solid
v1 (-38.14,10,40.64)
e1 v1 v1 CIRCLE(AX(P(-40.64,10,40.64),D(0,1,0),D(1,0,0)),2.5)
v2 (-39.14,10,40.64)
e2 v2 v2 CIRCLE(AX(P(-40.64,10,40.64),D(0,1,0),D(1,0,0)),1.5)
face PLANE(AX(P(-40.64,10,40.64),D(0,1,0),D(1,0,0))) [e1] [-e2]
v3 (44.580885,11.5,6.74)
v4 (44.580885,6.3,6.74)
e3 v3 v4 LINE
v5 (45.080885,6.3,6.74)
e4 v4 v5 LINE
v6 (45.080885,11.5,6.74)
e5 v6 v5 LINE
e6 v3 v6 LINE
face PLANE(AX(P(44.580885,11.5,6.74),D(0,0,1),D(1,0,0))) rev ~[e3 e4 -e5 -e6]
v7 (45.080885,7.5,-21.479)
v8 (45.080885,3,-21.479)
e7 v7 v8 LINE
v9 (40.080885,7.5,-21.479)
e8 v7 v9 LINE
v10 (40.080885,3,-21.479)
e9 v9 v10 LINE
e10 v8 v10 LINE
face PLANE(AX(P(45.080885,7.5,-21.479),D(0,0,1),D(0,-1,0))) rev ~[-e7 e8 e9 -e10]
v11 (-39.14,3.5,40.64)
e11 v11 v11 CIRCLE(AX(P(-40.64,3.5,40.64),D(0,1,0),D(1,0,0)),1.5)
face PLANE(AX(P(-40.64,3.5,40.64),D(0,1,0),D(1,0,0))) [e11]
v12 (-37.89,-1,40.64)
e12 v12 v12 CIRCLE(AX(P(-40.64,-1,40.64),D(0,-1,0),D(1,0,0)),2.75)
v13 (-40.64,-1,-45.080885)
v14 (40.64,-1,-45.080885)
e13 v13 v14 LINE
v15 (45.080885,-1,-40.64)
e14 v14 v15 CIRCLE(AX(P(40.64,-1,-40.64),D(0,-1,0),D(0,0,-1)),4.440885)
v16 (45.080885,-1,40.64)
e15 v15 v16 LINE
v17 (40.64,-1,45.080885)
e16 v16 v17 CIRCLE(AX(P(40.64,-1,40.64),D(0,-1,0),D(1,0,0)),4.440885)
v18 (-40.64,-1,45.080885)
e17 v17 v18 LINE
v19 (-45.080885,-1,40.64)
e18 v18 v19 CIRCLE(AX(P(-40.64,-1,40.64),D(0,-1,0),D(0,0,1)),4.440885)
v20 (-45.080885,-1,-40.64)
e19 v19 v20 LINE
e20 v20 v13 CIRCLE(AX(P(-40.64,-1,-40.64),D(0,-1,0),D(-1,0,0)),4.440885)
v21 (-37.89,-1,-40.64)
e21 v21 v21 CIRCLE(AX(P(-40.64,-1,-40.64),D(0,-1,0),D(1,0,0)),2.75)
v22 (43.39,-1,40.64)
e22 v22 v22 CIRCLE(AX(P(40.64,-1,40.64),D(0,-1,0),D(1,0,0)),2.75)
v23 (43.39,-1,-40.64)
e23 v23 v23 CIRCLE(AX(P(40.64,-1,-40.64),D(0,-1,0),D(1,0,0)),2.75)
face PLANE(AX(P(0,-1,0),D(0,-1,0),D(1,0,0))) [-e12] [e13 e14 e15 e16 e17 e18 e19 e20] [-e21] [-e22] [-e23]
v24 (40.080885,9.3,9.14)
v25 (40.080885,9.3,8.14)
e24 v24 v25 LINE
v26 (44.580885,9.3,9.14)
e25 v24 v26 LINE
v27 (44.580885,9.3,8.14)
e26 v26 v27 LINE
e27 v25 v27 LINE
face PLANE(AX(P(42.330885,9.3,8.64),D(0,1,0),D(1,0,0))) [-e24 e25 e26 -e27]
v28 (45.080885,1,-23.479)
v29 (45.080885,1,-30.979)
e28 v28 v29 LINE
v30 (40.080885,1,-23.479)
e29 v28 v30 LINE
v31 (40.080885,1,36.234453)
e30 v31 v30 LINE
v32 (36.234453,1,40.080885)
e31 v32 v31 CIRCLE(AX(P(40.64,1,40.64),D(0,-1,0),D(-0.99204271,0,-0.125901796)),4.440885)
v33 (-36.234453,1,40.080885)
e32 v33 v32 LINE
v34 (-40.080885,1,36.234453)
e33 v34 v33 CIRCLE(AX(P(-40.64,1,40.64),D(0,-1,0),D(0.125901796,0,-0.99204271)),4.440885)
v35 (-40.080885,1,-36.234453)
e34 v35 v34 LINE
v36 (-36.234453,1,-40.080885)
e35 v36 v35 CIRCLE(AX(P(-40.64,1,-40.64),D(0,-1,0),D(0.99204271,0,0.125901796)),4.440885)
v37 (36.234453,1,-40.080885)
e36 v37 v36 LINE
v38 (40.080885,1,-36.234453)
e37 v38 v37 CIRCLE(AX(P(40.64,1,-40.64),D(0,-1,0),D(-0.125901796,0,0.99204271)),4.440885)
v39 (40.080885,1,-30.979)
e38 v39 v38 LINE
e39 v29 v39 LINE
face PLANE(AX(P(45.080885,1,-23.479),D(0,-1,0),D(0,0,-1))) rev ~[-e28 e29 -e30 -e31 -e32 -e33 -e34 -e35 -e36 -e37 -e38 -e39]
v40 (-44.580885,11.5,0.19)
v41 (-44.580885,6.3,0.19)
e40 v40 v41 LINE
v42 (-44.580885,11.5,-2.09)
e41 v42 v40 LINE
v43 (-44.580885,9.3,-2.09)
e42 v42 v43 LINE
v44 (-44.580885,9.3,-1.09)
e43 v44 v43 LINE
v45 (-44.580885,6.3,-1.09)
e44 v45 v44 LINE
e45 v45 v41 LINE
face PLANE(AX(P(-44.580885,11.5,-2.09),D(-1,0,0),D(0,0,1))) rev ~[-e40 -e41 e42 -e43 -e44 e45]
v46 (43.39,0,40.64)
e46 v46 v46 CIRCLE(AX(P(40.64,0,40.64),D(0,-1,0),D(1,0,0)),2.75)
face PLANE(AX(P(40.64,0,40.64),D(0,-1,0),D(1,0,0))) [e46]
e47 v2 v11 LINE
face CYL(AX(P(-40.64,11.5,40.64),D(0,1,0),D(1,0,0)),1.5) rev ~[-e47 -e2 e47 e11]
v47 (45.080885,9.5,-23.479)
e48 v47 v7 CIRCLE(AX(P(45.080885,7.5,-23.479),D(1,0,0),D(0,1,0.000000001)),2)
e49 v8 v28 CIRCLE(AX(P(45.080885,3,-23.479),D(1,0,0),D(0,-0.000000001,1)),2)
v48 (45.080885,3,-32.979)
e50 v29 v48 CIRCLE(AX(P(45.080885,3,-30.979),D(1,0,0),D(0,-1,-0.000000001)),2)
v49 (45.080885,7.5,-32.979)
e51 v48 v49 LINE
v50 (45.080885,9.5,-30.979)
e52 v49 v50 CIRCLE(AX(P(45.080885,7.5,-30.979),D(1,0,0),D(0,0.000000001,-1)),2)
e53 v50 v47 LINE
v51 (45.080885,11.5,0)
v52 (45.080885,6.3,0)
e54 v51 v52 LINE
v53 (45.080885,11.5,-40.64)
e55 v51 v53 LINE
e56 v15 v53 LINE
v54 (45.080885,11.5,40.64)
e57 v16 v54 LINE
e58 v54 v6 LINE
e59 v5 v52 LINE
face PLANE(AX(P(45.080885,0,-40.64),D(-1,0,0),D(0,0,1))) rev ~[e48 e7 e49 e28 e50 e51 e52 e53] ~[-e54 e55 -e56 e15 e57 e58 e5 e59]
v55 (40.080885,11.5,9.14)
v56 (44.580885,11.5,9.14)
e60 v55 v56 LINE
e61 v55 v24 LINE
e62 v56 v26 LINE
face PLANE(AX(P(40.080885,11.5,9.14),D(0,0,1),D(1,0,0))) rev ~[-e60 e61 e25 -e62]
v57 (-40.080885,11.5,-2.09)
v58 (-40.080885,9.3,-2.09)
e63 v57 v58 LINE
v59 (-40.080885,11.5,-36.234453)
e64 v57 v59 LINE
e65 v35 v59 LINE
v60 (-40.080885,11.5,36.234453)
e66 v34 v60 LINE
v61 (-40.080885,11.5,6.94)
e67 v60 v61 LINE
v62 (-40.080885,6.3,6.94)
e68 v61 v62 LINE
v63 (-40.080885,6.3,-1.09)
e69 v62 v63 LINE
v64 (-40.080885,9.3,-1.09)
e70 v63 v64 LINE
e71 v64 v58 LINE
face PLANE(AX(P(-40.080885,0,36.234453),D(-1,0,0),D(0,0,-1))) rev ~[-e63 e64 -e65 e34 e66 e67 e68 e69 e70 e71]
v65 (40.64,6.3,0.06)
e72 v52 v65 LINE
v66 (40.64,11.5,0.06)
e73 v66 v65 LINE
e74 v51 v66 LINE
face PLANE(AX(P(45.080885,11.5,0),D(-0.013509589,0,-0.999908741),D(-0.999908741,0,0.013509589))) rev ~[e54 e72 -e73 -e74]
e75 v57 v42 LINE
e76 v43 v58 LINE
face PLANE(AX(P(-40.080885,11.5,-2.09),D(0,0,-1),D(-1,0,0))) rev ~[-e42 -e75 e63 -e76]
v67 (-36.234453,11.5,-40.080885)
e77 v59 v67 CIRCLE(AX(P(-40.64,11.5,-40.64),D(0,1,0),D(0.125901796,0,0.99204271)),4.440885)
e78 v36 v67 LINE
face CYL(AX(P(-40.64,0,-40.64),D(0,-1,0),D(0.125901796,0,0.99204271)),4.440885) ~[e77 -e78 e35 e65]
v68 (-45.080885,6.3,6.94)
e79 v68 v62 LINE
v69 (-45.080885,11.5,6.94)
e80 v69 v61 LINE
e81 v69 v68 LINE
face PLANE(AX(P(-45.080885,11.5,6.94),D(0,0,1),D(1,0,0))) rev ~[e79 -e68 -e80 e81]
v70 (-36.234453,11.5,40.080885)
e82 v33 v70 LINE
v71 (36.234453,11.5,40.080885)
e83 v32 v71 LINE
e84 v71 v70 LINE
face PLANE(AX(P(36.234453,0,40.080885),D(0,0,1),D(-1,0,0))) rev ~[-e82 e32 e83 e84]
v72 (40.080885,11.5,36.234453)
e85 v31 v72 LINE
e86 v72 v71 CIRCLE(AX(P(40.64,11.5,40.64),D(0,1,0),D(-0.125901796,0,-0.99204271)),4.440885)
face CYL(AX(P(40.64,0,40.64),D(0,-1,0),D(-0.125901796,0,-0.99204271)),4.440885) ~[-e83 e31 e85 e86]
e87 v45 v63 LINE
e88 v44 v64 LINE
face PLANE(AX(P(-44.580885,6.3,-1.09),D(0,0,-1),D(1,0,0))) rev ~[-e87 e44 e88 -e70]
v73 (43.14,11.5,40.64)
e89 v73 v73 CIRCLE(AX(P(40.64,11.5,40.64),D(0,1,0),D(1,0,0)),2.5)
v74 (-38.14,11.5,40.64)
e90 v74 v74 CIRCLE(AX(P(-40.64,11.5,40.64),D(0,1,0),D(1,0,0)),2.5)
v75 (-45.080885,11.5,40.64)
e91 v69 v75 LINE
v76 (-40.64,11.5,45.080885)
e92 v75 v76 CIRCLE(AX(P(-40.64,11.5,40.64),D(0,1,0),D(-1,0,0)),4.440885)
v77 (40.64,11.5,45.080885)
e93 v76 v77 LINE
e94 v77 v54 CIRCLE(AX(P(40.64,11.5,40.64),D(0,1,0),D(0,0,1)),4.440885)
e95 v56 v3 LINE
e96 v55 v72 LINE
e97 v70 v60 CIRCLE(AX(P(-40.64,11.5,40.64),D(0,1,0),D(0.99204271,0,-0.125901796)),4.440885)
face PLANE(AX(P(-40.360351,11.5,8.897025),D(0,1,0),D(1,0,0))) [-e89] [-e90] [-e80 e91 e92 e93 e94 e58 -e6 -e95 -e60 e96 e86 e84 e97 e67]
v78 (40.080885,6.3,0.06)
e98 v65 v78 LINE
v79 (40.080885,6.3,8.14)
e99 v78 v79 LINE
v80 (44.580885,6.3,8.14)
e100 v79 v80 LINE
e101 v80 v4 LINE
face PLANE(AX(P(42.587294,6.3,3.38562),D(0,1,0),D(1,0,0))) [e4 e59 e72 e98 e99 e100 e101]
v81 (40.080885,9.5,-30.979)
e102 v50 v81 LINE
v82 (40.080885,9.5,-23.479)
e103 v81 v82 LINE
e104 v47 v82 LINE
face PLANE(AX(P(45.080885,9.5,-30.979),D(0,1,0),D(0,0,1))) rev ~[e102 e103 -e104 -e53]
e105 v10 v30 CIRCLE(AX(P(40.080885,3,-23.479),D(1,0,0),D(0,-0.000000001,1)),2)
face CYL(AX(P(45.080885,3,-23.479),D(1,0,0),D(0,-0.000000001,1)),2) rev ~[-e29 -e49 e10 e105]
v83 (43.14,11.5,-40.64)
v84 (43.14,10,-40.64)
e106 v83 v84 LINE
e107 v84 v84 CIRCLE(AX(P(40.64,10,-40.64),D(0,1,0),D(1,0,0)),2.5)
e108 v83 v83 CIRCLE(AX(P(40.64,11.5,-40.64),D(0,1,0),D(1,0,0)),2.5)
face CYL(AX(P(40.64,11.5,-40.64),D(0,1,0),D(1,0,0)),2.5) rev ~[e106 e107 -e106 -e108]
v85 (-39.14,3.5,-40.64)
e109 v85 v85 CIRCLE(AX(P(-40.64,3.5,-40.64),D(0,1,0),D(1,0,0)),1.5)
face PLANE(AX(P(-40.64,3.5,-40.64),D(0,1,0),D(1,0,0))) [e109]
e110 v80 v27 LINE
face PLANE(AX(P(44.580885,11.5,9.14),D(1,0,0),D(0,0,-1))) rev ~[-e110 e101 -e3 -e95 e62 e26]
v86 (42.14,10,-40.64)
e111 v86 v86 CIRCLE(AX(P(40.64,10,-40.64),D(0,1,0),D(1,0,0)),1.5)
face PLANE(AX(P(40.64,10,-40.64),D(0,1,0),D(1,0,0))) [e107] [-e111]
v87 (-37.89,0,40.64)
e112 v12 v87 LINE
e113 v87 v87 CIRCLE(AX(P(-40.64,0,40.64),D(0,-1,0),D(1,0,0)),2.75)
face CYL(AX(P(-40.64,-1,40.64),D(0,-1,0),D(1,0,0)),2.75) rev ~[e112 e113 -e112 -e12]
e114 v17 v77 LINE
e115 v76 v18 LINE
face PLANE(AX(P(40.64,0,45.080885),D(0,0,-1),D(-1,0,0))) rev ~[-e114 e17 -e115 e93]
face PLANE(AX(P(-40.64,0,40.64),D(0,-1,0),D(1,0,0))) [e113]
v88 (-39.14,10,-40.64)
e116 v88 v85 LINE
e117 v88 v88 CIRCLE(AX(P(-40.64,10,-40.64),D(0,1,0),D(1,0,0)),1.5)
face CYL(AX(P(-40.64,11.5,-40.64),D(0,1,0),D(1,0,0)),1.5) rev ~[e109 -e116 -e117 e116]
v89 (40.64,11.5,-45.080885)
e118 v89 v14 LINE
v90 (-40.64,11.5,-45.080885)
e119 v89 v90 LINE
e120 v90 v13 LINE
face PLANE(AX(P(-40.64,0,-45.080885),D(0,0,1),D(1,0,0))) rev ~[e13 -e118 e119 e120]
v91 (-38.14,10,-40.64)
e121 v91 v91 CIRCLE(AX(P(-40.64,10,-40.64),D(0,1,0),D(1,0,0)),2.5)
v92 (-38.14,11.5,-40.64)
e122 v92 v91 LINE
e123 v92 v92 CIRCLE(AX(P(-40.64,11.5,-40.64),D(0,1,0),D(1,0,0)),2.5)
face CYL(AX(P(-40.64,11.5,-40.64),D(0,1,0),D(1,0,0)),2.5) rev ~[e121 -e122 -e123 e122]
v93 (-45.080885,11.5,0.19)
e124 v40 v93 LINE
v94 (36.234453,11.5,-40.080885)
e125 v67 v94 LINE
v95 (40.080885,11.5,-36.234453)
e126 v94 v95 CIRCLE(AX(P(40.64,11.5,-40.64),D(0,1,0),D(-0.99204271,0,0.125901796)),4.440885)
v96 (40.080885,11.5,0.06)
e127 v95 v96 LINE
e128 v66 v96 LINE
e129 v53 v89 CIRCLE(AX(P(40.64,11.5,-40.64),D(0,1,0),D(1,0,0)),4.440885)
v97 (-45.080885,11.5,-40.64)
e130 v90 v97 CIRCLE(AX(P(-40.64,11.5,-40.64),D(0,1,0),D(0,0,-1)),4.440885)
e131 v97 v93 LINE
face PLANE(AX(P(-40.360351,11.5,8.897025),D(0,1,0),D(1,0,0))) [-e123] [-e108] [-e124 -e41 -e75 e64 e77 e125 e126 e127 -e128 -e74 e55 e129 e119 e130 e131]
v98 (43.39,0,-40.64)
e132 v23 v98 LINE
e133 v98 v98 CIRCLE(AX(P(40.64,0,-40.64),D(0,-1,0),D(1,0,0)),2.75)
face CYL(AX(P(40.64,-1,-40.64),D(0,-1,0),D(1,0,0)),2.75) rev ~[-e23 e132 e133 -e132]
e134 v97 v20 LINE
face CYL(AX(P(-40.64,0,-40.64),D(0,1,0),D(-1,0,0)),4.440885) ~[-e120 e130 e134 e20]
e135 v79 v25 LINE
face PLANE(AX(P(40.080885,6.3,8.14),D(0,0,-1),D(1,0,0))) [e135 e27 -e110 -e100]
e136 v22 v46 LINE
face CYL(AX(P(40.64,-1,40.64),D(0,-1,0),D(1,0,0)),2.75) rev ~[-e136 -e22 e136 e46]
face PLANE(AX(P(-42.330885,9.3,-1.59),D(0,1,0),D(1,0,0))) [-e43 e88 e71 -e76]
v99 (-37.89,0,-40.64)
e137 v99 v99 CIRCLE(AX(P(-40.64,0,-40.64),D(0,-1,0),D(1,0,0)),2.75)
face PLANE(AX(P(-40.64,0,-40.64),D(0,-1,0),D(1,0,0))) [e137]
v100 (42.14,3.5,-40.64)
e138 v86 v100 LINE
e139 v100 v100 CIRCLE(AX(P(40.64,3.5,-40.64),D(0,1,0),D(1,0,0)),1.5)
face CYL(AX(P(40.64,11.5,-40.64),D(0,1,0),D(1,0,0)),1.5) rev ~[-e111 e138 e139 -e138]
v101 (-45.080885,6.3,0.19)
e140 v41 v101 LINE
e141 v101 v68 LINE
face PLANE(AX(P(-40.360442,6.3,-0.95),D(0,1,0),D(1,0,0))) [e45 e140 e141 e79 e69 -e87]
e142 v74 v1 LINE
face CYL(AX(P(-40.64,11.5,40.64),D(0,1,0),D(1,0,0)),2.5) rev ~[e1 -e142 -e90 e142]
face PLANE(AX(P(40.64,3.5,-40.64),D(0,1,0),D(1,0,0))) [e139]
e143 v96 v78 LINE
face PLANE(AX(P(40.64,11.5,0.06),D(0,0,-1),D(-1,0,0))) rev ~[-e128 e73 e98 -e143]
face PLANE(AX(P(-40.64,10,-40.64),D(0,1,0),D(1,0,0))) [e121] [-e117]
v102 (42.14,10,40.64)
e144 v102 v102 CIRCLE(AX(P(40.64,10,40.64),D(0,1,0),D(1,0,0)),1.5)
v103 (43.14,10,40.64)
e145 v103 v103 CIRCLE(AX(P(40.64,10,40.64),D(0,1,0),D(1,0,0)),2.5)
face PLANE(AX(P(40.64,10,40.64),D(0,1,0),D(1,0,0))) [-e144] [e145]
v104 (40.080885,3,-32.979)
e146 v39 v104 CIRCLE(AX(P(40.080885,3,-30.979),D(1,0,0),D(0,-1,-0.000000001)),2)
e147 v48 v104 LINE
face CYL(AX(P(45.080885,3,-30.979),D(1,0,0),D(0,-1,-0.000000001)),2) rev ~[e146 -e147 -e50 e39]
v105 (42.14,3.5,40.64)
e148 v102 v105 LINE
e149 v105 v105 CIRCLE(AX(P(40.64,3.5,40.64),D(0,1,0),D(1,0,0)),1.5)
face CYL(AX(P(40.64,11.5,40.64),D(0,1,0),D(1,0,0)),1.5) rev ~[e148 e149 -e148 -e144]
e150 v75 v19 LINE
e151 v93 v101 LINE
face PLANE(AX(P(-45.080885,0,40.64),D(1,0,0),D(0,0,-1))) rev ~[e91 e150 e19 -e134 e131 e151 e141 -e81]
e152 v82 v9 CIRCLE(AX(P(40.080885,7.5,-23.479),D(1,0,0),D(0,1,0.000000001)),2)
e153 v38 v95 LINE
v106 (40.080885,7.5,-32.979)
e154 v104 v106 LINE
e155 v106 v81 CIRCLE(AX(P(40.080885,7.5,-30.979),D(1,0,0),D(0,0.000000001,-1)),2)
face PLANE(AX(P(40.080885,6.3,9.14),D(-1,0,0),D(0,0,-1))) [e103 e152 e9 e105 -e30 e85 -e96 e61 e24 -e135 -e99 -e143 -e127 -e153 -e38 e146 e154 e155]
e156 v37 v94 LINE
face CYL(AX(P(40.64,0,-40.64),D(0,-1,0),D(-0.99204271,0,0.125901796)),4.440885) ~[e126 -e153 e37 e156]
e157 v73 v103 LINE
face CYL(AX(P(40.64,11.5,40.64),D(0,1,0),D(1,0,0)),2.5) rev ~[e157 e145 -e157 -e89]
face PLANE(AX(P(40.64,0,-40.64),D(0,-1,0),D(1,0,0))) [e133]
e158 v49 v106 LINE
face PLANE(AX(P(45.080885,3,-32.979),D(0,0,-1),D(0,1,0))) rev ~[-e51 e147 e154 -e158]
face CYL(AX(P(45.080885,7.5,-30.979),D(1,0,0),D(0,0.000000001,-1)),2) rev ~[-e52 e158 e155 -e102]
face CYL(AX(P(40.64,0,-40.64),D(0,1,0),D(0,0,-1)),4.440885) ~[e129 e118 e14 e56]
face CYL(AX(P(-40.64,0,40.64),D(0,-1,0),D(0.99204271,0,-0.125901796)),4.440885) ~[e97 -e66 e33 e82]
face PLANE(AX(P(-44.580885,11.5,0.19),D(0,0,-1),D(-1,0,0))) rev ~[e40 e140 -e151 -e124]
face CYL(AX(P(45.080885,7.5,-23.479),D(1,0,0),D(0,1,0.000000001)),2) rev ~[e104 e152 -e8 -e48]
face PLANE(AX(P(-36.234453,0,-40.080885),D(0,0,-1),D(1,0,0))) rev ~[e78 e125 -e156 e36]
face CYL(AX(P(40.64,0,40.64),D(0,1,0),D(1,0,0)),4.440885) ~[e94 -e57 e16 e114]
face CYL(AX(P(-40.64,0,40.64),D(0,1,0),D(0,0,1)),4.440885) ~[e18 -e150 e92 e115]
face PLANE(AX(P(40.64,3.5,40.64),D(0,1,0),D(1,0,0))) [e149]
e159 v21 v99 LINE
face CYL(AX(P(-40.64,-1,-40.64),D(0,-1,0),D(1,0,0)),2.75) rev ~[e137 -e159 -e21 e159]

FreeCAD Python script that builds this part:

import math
import FreeCAD as App
import Part
import Sketcher
Q = App.Units.Quantity


def add_polygon(sketch, points):
    """Adds a closed chain of lines whose ends are joined by coincident constraints."""
    first, n = sketch.GeometryCount, len(points)
    for a, b in zip(points, points[1:] + points[:1]):
        sketch.addGeometry(Part.LineSegment(App.Vector(*a, 0), App.Vector(*b, 0)), False)
    for i in range(n):
        sketch.addConstraint(Sketcher.Constraint("Coincident", first + i, 2, first + (i + 1) % n, 1))

doc = App.newDocument("Part")
body = doc.addObject("PartDesign::Body", "Body")

sketch1 = body.newObject("Sketcher::SketchObject", "Sketch")
sketch1.AttachmentSupport = (doc.getObject("XZ_Plane"), [""])
sketch1.MapMode = "FlatFace"
sketch1.addGeometry(Part.ArcOfCircle(Part.Circle(App.Vector(-40.64, -40.64, 0), App.Vector(0, 0, 1), 4.440885), math.radians(180), math.radians(270)), False)
sketch1.addGeometry(Part.LineSegment(App.Vector(-45.080885, -40.64, 0), App.Vector(-45.080885, 40.64, 0)), False)
sketch1.addGeometry(Part.ArcOfCircle(Part.Circle(App.Vector(-40.64, 40.64, 0), App.Vector(0, 0, 1), 4.440885), math.radians(90), math.radians(180)), False)
sketch1.addGeometry(Part.LineSegment(App.Vector(-40.64, 45.080885, 0), App.Vector(40.64, 45.080885, 0)), False)
sketch1.addGeometry(Part.ArcOfCircle(Part.Circle(App.Vector(40.64, 40.64, 0), App.Vector(0, 0, 1), 4.440885), math.radians(0), math.radians(90)), False)
sketch1.addGeometry(Part.LineSegment(App.Vector(45.080885, 40.64, 0), App.Vector(45.080885, -40.64, 0)), False)
sketch1.addGeometry(Part.ArcOfCircle(Part.Circle(App.Vector(40.64, -40.64, 0), App.Vector(0, 0, 1), 4.440885), math.radians(-90), math.radians(0)), False)
sketch1.addGeometry(Part.LineSegment(App.Vector(40.64, -45.080885, 0), App.Vector(-40.64, -45.080885, 0)), False)
sketch1.addGeometry(Part.ArcOfCircle(Part.Circle(App.Vector(40.64, 40.64, 0), App.Vector(0, 0, 1), 4.440885), math.radians(-172.767164), math.radians(-97.232836)), False)
sketch1.addGeometry(Part.LineSegment(App.Vector(36.234453, 40.080885, 0), App.Vector(-36.234453, 40.080885, 0)), False)
sketch1.addGeometry(Part.ArcOfCircle(Part.Circle(App.Vector(-40.64, 40.64, 0), App.Vector(0, 0, 1), 4.440885), math.radians(-82.767164), math.radians(-7.232836)), False)
sketch1.addGeometry(Part.LineSegment(App.Vector(-40.080885, 36.234453, 0), App.Vector(-40.080885, -36.234453, 0)), False)
sketch1.addGeometry(Part.ArcOfCircle(Part.Circle(App.Vector(-40.64, -40.64, 0), App.Vector(0, 0, 1), 4.440885), math.radians(7.232836), math.radians(82.767164)), False)
sketch1.addGeometry(Part.LineSegment(App.Vector(-36.234453, -40.080885, 0), App.Vector(36.234453, -40.080885, 0)), False)
sketch1.addGeometry(Part.ArcOfCircle(Part.Circle(App.Vector(40.64, -40.64, 0), App.Vector(0, 0, 1), 4.440885), math.radians(97.232836), math.radians(172.767164)), False)
sketch1.addGeometry(Part.LineSegment(App.Vector(40.080885, -36.234453, 0), App.Vector(40.080885, 36.234453, 0)), False)
sketch1.addConstraint(Sketcher.Constraint("Tangent", 0, 1, 1, 1))
sketch1.addConstraint(Sketcher.Constraint("Tangent", 1, 2, 2, 2))
sketch1.addConstraint(Sketcher.Constraint("Tangent", 2, 1, 3, 1))
sketch1.addConstraint(Sketcher.Constraint("Tangent", 3, 2, 4, 2))
sketch1.addConstraint(Sketcher.Constraint("Tangent", 4, 1, 5, 1))
sketch1.addConstraint(Sketcher.Constraint("Tangent", 5, 2, 6, 2))
sketch1.addConstraint(Sketcher.Constraint("Tangent", 6, 1, 7, 1))
sketch1.addConstraint(Sketcher.Constraint("Tangent", 7, 2, 0, 2))
sketch1.addConstraint(Sketcher.Constraint("Coincident", 8, 1, 9, 1))
sketch1.addConstraint(Sketcher.Constraint("Coincident", 9, 2, 10, 2))
sketch1.addConstraint(Sketcher.Constraint("Coincident", 10, 1, 11, 1))
sketch1.addConstraint(Sketcher.Constraint("Coincident", 11, 2, 12, 2))
sketch1.addConstraint(Sketcher.Constraint("Coincident", 12, 1, 13, 1))
sketch1.addConstraint(Sketcher.Constraint("Coincident", 13, 2, 14, 2))
sketch1.addConstraint(Sketcher.Constraint("Coincident", 14, 1, 15, 1))
sketch1.addConstraint(Sketcher.Constraint("Coincident", 15, 2, 8, 2))
sketch1.addConstraint(Sketcher.Constraint("Vertical", 1))
sketch1.addConstraint(Sketcher.Constraint("Horizontal", 3))
sketch1.addConstraint(Sketcher.Constraint("Vertical", 5))
sketch1.addConstraint(Sketcher.Constraint("Horizontal", 7))
sketch1.addConstraint(Sketcher.Constraint("Horizontal", 9))
sketch1.addConstraint(Sketcher.Constraint("Vertical", 11))
sketch1.addConstraint(Sketcher.Constraint("Horizontal", 13))
sketch1.addConstraint(Sketcher.Constraint("Vertical", 15))
sketch1.addConstraint(Sketcher.Constraint("Coincident", 8, 3, 4, 3))
sketch1.addConstraint(Sketcher.Constraint("Coincident", 10, 3, 2, 3))
sketch1.addConstraint(Sketcher.Constraint("Coincident", 12, 3, 0, 3))
sketch1.addConstraint(Sketcher.Constraint("Coincident", 14, 3, 6, 3))
sketch1.addConstraint(Sketcher.Constraint("Equal", 0, 2))
sketch1.addConstraint(Sketcher.Constraint("Equal", 2, 4))
sketch1.addConstraint(Sketcher.Constraint("Equal", 4, 6))
sketch1.addConstraint(Sketcher.Constraint("Equal", 6, 8))
sketch1.addConstraint(Sketcher.Constraint("Equal", 8, 10))
sketch1.addConstraint(Sketcher.Constraint("Equal", 10, 12))
sketch1.addConstraint(Sketcher.Constraint("Equal", 12, 14))
sketch1.addConstraint(Sketcher.Constraint("Symmetric", 0, 3, 4, 3, -1, 1))
sketch1.addConstraint(Sketcher.Constraint("Horizontal", 11, 2, 14, 1))
sketch1.addConstraint(Sketcher.Constraint("Vertical", 9, 2, 12, 1))
sketch1.addConstraint(Sketcher.Constraint("Equal", 7, 1))
sketch1.addConstraint(Sketcher.Constraint("Equal", 13, 11))
sketch1.addConstraint(Sketcher.Constraint("DistanceY", 8, 1, 3, 2, Q("5 mm")))
sketch1.addConstraint(Sketcher.Constraint("DistanceX", 3, 1, 3, 2, Q("81.28 mm")))
sketch1.addConstraint(Sketcher.Constraint("Radius", 0, Q("4.440885 mm")))
pad1 = body.newObject("PartDesign::Pad", "Pad")
pad1.Profile = sketch1
pad1.Length = 11.5
pad1.Reversed = True

sketch2 = body.newObject("Sketcher::SketchObject", "Sketch001")
sketch2.AttachmentSupport = (doc.getObject("XZ_Plane"), [""])
sketch2.MapMode = "FlatFace"
sketch2.AttachmentOffset = App.Placement(App.Vector(0, 0, -11.5), App.Rotation())
sketch2.addGeometry(Part.Circle(App.Vector(-40.64, -40.64, 0), App.Vector(0, 0, 1), 1.5), False)
sketch2.addGeometry(Part.Circle(App.Vector(40.64, -40.64, 0), App.Vector(0, 0, 1), 1.5), False)
sketch2.addGeometry(Part.Circle(App.Vector(40.64, 40.64, 0), App.Vector(0, 0, 1), 1.5), False)
sketch2.addGeometry(Part.Circle(App.Vector(-40.64, 40.64, 0), App.Vector(0, 0, 1), 1.5), False)
sketch2.addConstraint(Sketcher.Constraint("Equal", 0, 1))
sketch2.addConstraint(Sketcher.Constraint("Equal", 1, 2))
sketch2.addConstraint(Sketcher.Constraint("Equal", 2, 3))
sketch2.addConstraint(Sketcher.Constraint("Symmetric", 0, 3, 2, 3, -1, 1))
sketch2.addConstraint(Sketcher.Constraint("Symmetric", 1, 3, 3, 3, -1, 1))
sketch2.addConstraint(Sketcher.Constraint("Symmetric", 0, 3, 1, 3, -2))
sketch2.addConstraint(Sketcher.Constraint("Diameter", 0, Q("3 mm")))
sketch2.addConstraint(Sketcher.Constraint("DistanceX", 0, 3, -1, 1, Q("40.64 mm")))
sketch2.addConstraint(Sketcher.Constraint("DistanceY", 0, 3, -1, 1, Q("40.64 mm")))
pocket1 = body.newObject("PartDesign::Pocket", "Pocket")
pocket1.Profile = sketch2
pocket1.Length = 8
pocket1.Reversed = True

sketch3 = body.newObject("Sketcher::SketchObject", "Sketch002")
sketch3.AttachmentSupport = (doc.getObject("YZ_Plane"), [""])
sketch3.MapMode = "FlatFace"
sketch3.AttachmentOffset = App.Placement(App.Vector(0, 0, 45.080885), App.Rotation())
sketch3.addGeometry(Part.LineSegment(App.Vector(9.5, -30.979, 0), App.Vector(9.5, -23.479, 0)), False)
sketch3.addGeometry(Part.ArcOfCircle(Part.Circle(App.Vector(7.5, -23.479, 0), App.Vector(0, 0, 1), 2), math.radians(0), math.radians(90)), False)
sketch3.addGeometry(Part.LineSegment(App.Vector(7.5, -21.479, 0), App.Vector(3, -21.479, 0)), False)
sketch3.addGeometry(Part.ArcOfCircle(Part.Circle(App.Vector(3, -23.479, 0), App.Vector(0, 0, 1), 2), math.radians(90), math.radians(180)), False)
sketch3.addGeometry(Part.LineSegment(App.Vector(1, -23.479, 0), App.Vector(1, -30.979, 0)), False)
sketch3.addGeometry(Part.ArcOfCircle(Part.Circle(App.Vector(3, -30.979, 0), App.Vector(0, 0, 1), 2), math.radians(-180), math.radians(-90)), False)
sketch3.addGeometry(Part.LineSegment(App.Vector(3, -32.979, 0), App.Vector(7.5, -32.979, 0)), False)
sketch3.addGeometry(Part.ArcOfCircle(Part.Circle(App.Vector(7.5, -30.979, 0), App.Vector(0, 0, 1), 2), math.radians(-90), math.radians(0)), False)
sketch3.addConstraint(Sketcher.Constraint("Tangent", 0, 2, 1, 1))
sketch3.addConstraint(Sketcher.Constraint("Tangent", 1, 2, 2, 1))
sketch3.addConstraint(Sketcher.Constraint("Tangent", 2, 2, 3, 1))
sketch3.addConstraint(Sketcher.Constraint("Tangent", 3, 2, 4, 1))
sketch3.addConstraint(Sketcher.Constraint("Tangent", 4, 2, 5, 1))
sketch3.addConstraint(Sketcher.Constraint("Tangent", 5, 2, 6, 1))
sketch3.addConstraint(Sketcher.Constraint("Tangent", 6, 2, 7, 1))
sketch3.addConstraint(Sketcher.Constraint("Tangent", 7, 2, 0, 1))
sketch3.addConstraint(Sketcher.Constraint("Vertical", 0))
sketch3.addConstraint(Sketcher.Constraint("Horizontal", 2))
sketch3.addConstraint(Sketcher.Constraint("Vertical", 4))
sketch3.addConstraint(Sketcher.Constraint("Horizontal", 6))
sketch3.addConstraint(Sketcher.Constraint("Equal", 1, 3))
sketch3.addConstraint(Sketcher.Constraint("Equal", 3, 5))
sketch3.addConstraint(Sketcher.Constraint("Equal", 5, 7))
sketch3.addConstraint(Sketcher.Constraint("Radius", 1, Q("2 mm")))
sketch3.addConstraint(Sketcher.Constraint("DistanceX", 2, 2, 2, 1, Q("4.5 mm")))
sketch3.addConstraint(Sketcher.Constraint("DistanceY", 0, 1, 0, 2, Q("7.5 mm")))
sketch3.addConstraint(Sketcher.Constraint("DistanceX", -1, 1, 3, 3, Q("3 mm")))
sketch3.addConstraint(Sketcher.Constraint("DistanceY", 1, 3, -1, 1, Q("23.479 mm")))
pocket2 = body.newObject("PartDesign::Pocket", "Pocket001")
pocket2.Profile = sketch3
pocket2.Length = 8

sketch4 = body.newObject("Sketcher::SketchObject", "Sketch003")
sketch4.AttachmentSupport = (doc.getObject("XZ_Plane"), [""])
sketch4.MapMode = "FlatFace"
sketch4.AttachmentOffset = App.Placement(App.Vector(0, 0, -11.5), App.Rotation())
sketch4.addGeometry(Part.Circle(App.Vector(-40.64, -40.64, 0), App.Vector(0, 0, 1), 2.5), False)
sketch4.addGeometry(Part.Circle(App.Vector(40.64, -40.64, 0), App.Vector(0, 0, 1), 2.5), False)
sketch4.addGeometry(Part.Circle(App.Vector(40.64, 40.64, 0), App.Vector(0, 0, 1), 2.5), False)
sketch4.addGeometry(Part.Circle(App.Vector(-40.64, 40.64, 0), App.Vector(0, 0, 1), 2.5), False)
sketch4.addConstraint(Sketcher.Constraint("Equal", 0, 1))
sketch4.addConstraint(Sketcher.Constraint("Equal", 1, 2))
sketch4.addConstraint(Sketcher.Constraint("Equal", 2, 3))
sketch4.addConstraint(Sketcher.Constraint("Symmetric", 0, 3, 2, 3, -1, 1))
sketch4.addConstraint(Sketcher.Constraint("Symmetric", 1, 3, 3, 3, -1, 1))
sketch4.addConstraint(Sketcher.Constraint("Symmetric", 0, 3, 1, 3, -2))
sketch4.addConstraint(Sketcher.Constraint("Diameter", 0, Q("5 mm")))
sketch4.addConstraint(Sketcher.Constraint("DistanceX", 0, 3, -1, 1, Q("40.64 mm")))
sketch4.addConstraint(Sketcher.Constraint("DistanceY", 0, 3, -1, 1, Q("40.64 mm")))
pocket3 = body.newObject("PartDesign::Pocket", "Pocket002")
pocket3.Profile = sketch4
pocket3.Length = 1.5
pocket3.Reversed = True

sketch5 = body.newObject("Sketcher::SketchObject", "Sketch004")
sketch5.AttachmentSupport = (doc.getObject("XZ_Plane"), [""])
sketch5.MapMode = "FlatFace"
sketch5.addGeometry(Part.ArcOfCircle(Part.Circle(App.Vector(40.64, 40.64, 0), App.Vector(0, 0, 1), 4.440885), math.radians(-172.767164), math.radians(-97.232836)), False)
sketch5.addGeometry(Part.LineSegment(App.Vector(36.234453, 40.080885, 0), App.Vector(-36.234453, 40.080885, 0)), False)
sketch5.addGeometry(Part.ArcOfCircle(Part.Circle(App.Vector(-40.64, 40.64, 0), App.Vector(0, 0, 1), 4.440885), math.radians(-82.767164), math.radians(-7.232836)), False)
sketch5.addGeometry(Part.LineSegment(App.Vector(-40.080885, 36.234453, 0), App.Vector(-40.080885, -36.234453, 0)), False)
sketch5.addGeometry(Part.ArcOfCircle(Part.Circle(App.Vector(-40.64, -40.64, 0), App.Vector(0, 0, 1), 4.440885), math.radians(7.232836), math.radians(82.767164)), False)
sketch5.addGeometry(Part.LineSegment(App.Vector(-36.234453, -40.080885, 0), App.Vector(36.234453, -40.080885, 0)), False)
sketch5.addGeometry(Part.ArcOfCircle(Part.Circle(App.Vector(40.64, -40.64, 0), App.Vector(0, 0, 1), 4.440885), math.radians(97.232836), math.radians(172.767164)), False)
sketch5.addGeometry(Part.LineSegment(App.Vector(40.080885, -36.234453, 0), App.Vector(40.080885, 36.234453, 0)), False)
sketch5.addConstraint(Sketcher.Constraint("Coincident", 0, 1, 1, 1))
sketch5.addConstraint(Sketcher.Constraint("Coincident", 1, 2, 2, 2))
sketch5.addConstraint(Sketcher.Constraint("Coincident", 2, 1, 3, 1))
sketch5.addConstraint(Sketcher.Constraint("Coincident", 3, 2, 4, 2))
sketch5.addConstraint(Sketcher.Constraint("Coincident", 4, 1, 5, 1))
sketch5.addConstraint(Sketcher.Constraint("Coincident", 5, 2, 6, 2))
sketch5.addConstraint(Sketcher.Constraint("Coincident", 6, 1, 7, 1))
sketch5.addConstraint(Sketcher.Constraint("Coincident", 7, 2, 0, 2))
sketch5.addConstraint(Sketcher.Constraint("Horizontal", 1))
sketch5.addConstraint(Sketcher.Constraint("Vertical", 3))
sketch5.addConstraint(Sketcher.Constraint("Horizontal", 5))
sketch5.addConstraint(Sketcher.Constraint("Vertical", 7))
sketch5.addConstraint(Sketcher.Constraint("Equal", 0, 2))
sketch5.addConstraint(Sketcher.Constraint("Equal", 2, 4))
sketch5.addConstraint(Sketcher.Constraint("Equal", 4, 6))
sketch5.addConstraint(Sketcher.Constraint("Symmetric", 0, 3, 4, 3, -1, 1))
sketch5.addConstraint(Sketcher.Constraint("Symmetric", 2, 3, 6, 3, -1, 1))
sketch5.addConstraint(Sketcher.Constraint("Symmetric", 0, 3, 2, 3, -2))
sketch5.addConstraint(Sketcher.Constraint("Horizontal", 3, 2, 6, 1))
sketch5.addConstraint(Sketcher.Constraint("Vertical", 1, 2, 4, 1))
sketch5.addConstraint(Sketcher.Constraint("Equal", 5, 3))
sketch5.addConstraint(Sketcher.Constraint("DistanceX", -1, 1, 0, 3, Q("40.64 mm")))
sketch5.addConstraint(Sketcher.Constraint("DistanceY", -1, 1, 0, 3, Q("40.64 mm")))
sketch5.addConstraint(Sketcher.Constraint("Radius", 0, Q("4.440885 mm")))
sketch5.addConstraint(Sketcher.Constraint("DistanceX", 1, 2, 1, 1, Q("72.468906 mm")))
pad2 = body.newObject("PartDesign::Pad", "Pad001")
pad2.Profile = sketch5
pad2.Length = 1
pad2.Reversed = True

sketch6 = body.newObject("Sketcher::SketchObject", "Sketch005")
sketch6.AttachmentSupport = (doc.getObject("XZ_Plane"), [""])
sketch6.MapMode = "FlatFace"
sketch6.addGeometry(Part.LineSegment(App.Vector(40.64, 45.080885, 0), App.Vector(-40.64, 45.080885, 0)), False)
sketch6.addGeometry(Part.ArcOfCircle(Part.Circle(App.Vector(-40.64, 40.64, 0), App.Vector(0, 0, 1), 4.440885), math.radians(90), math.radians(180)), False)
sketch6.addGeometry(Part.LineSegment(App.Vector(-45.080885, 40.64, 0), App.Vector(-45.080885, -40.64, 0)), False)
sketch6.addGeometry(Part.ArcOfCircle(Part.Circle(App.Vector(-40.64, -40.64, 0), App.Vector(0, 0, 1), 4.440885), math.radians(180), math.radians(270)), False)
sketch6.addGeometry(Part.LineSegment(App.Vector(-40.64, -45.080885, 0), App.Vector(40.64, -45.080885, 0)), False)
sketch6.addGeometry(Part.ArcOfCircle(Part.Circle(App.Vector(40.64, -40.64, 0), App.Vector(0, 0, 1), 4.440885), math.radians(-90), math.radians(0)), False)
sketch6.addGeometry(Part.LineSegment(App.Vector(45.080885, -40.64, 0), App.Vector(45.080885, 40.64, 0)), False)
sketch6.addGeometry(Part.ArcOfCircle(Part.Circle(App.Vector(40.64, 40.64, 0), App.Vector(0, 0, 1), 4.440885), math.radians(0), math.radians(90)), False)
sketch6.addConstraint(Sketcher.Constraint("Tangent", 0, 2, 1, 1))
sketch6.addConstraint(Sketcher.Constraint("Tangent", 1, 2, 2, 1))
sketch6.addConstraint(Sketcher.Constraint("Tangent", 2, 2, 3, 1))
sketch6.addConstraint(Sketcher.Constraint("Tangent", 3, 2, 4, 1))
sketch6.addConstraint(Sketcher.Constraint("Tangent", 4, 2, 5, 1))
sketch6.addConstraint(Sketcher.Constraint("Tangent", 5, 2, 6, 1))
sketch6.addConstraint(Sketcher.Constraint("Tangent", 6, 2, 7, 1))
sketch6.addConstraint(Sketcher.Constraint("Tangent", 7, 2, 0, 1))
sketch6.addConstraint(Sketcher.Constraint("Horizontal", 0))
sketch6.addConstraint(Sketcher.Constraint("Vertical", 2))
sketch6.addConstraint(Sketcher.Constraint("Horizontal", 4))
sketch6.addConstraint(Sketcher.Constraint("Vertical", 6))
sketch6.addConstraint(Sketcher.Constraint("Equal", 1, 3))
sketch6.addConstraint(Sketcher.Constraint("Equal", 3, 5))
sketch6.addConstraint(Sketcher.Constraint("Equal", 5, 7))
sketch6.addConstraint(Sketcher.Constraint("Symmetric", 1, 3, 5, 3, -1, 1))
sketch6.addConstraint(Sketcher.Constraint("Equal", 4, 2))
sketch6.addConstraint(Sketcher.Constraint("DistanceX", 0, 2, 0, 1, Q("81.28 mm")))
sketch6.addConstraint(Sketcher.Constraint("Radius", 1, Q("4.440885 mm")))
pad3 = body.newObject("PartDesign::Pad", "Pad002")
pad3.Profile = sketch6
pad3.Length = 1

sketch7 = body.newObject("Sketcher::SketchObject", "Sketch006")
sketch7.AttachmentSupport = (doc.getObject("XZ_Plane"), [""])
sketch7.MapMode = "FlatFace"
sketch7.AttachmentOffset = App.Placement(App.Vector(0, 0, 1), App.Rotation())
sketch7.addGeometry(Part.Circle(App.Vector(-40.64, 40.64, 0), App.Vector(0, 0, 1), 2.75), False)
sketch7.addGeometry(Part.Circle(App.Vector(40.64, 40.64, 0), App.Vector(0, 0, 1), 2.75), False)
sketch7.addGeometry(Part.Circle(App.Vector(40.64, -40.64, 0), App.Vector(0, 0, 1), 2.75), False)
sketch7.addGeometry(Part.Circle(App.Vector(-40.64, -40.64, 0), App.Vector(0, 0, 1), 2.75), False)
sketch7.addConstraint(Sketcher.Constraint("Equal", 0, 1))
sketch7.addConstraint(Sketcher.Constraint("Equal", 1, 2))
sketch7.addConstraint(Sketcher.Constraint("Equal", 2, 3))
sketch7.addConstraint(Sketcher.Constraint("Symmetric", 0, 3, 2, 3, -1, 1))
sketch7.addConstraint(Sketcher.Constraint("Symmetric", 1, 3, 3, 3, -1, 1))
sketch7.addConstraint(Sketcher.Constraint("Symmetric", 0, 3, 1, 3, -2))
sketch7.addConstraint(Sketcher.Constraint("Diameter", 0, Q("5.5 mm")))
sketch7.addConstraint(Sketcher.Constraint("DistanceX", 0, 3, -1, 1, Q("40.64 mm")))
sketch7.addConstraint(Sketcher.Constraint("DistanceY", -1, 1, 0, 3, Q("40.64 mm")))
pocket4 = body.newObject("PartDesign::Pocket", "Pocket003")
pocket4.Profile = sketch7
pocket4.Length = 1

sketch8 = body.newObject("Sketcher::SketchObject", "Sketch007")
sketch8.AttachmentSupport = (doc.getObject("XZ_Plane"), [""])
sketch8.MapMode = "FlatFace"
sketch8.AttachmentOffset = App.Placement(App.Vector(0, 0, -11.5), App.Rotation())
add_polygon(sketch8, [(-44.580885, 0.19), (-45.080885, 0.19), (-45.080885, 6.94), (-40.080885, 6.94), (-40.080885, -2.09), (-44.580885, -2.09)])
add_polygon(sketch8, [(44.580885, 6.74), (45.080885, 6.74), (45.080885, 0), (40.64, 0.06), (40.080885, 0.06), (40.080885, 9.14), (44.580885, 9.14)])
sketch8.addConstraint(Sketcher.Constraint("Horizontal", 0))
sketch8.addConstraint(Sketcher.Constraint("Vertical", 1))
sketch8.addConstraint(Sketcher.Constraint("Horizontal", 2))
sketch8.addConstraint(Sketcher.Constraint("Vertical", 3))
sketch8.addConstraint(Sketcher.Constraint("Horizontal", 4))
sketch8.addConstraint(Sketcher.Constraint("Vertical", 5))
sketch8.addConstraint(Sketcher.Constraint("Horizontal", 6))
sketch8.addConstraint(Sketcher.Constraint("Vertical", 7))
sketch8.addConstraint(Sketcher.Constraint("Horizontal", 9))
sketch8.addConstraint(Sketcher.Constraint("Vertical", 10))
sketch8.addConstraint(Sketcher.Constraint("Horizontal", 11))
sketch8.addConstraint(Sketcher.Constraint("Vertical", 12))
sketch8.addConstraint(Sketcher.Constraint("PointOnObject", 7, 2, -1))
sketch8.addConstraint(Sketcher.Constraint("Equal", 0, 6))
sketch8.addConstraint(Sketcher.Constraint("Equal", 4, 11))
sketch8.addConstraint(Sketcher.Constraint("DistanceX", 2, 1, 2, 2, Q("5 mm")))
sketch8.addConstraint(Sketcher.Constraint("DistanceX", 0, 2, 0, 1, Q("0.5 mm")))
sketch8.addConstraint(Sketcher.Constraint("DistanceY", 12, 2, 12, 1, Q("2.4 mm")))
sketch8.addConstraint(Sketcher.Constraint("DistanceY", 1, 1, 1, 2, Q("6.75 mm")))
sketch8.addConstraint(Sketcher.Constraint("DistanceY", 3, 2, 3, 1, Q("9.03 mm")))
sketch8.addConstraint(Sketcher.Constraint("DistanceY", 7, 2, 7, 1, Q("6.74 mm")))
sketch8.addConstraint(Sketcher.Constraint("DistanceY", 10, 1, 10, 2, Q("9.08 mm")))
sketch8.addConstraint(Sketcher.Constraint("DistanceY", 6, 2, 2, 2, Q("0.2 mm")))
sketch8.addConstraint(Sketcher.Constraint("DistanceX", -1, 1, 8, 2, Q("40.64 mm")))
sketch8.addConstraint(Sketcher.Constraint("Distance", 8, Q("4.44129 mm")))
sketch8.addConstraint(Sketcher.Constraint("DistanceX", 2, 2, 6, 2, Q("85.161769 mm")))
pocket5 = body.newObject("PartDesign::Pocket", "Pocket004")
pocket5.Profile = sketch8
pocket5.Length = 5.2
pocket5.Reversed = True

sketch9 = body.newObject("Sketcher::SketchObject", "Sketch008")
sketch9.AttachmentSupport = (doc.getObject("XZ_Plane"), [""])
sketch9.MapMode = "FlatFace"
sketch9.AttachmentOffset = App.Placement(App.Vector(0, 0, -6.3), App.Rotation())
add_polygon(sketch9, [(40.080885, 8.14), (40.080885, 9.14), (44.580885, 9.14), (44.580885, 8.14)])
add_polygon(sketch9, [(-44.580885, -2.09), (-44.580885, -1.09), (-40.080885, -1.09), (-40.080885, -2.09)])
sketch9.addConstraint(Sketcher.Constraint("Vertical", 0))
sketch9.addConstraint(Sketcher.Constraint("Horizontal", 1))
sketch9.addConstraint(Sketcher.Constraint("Vertical", 2))
sketch9.addConstraint(Sketcher.Constraint("Horizontal", 3))
sketch9.addConstraint(Sketcher.Constraint("Vertical", 4))
sketch9.addConstraint(Sketcher.Constraint("Horizontal", 5))
sketch9.addConstraint(Sketcher.Constraint("Vertical", 6))
sketch9.addConstraint(Sketcher.Constraint("Horizontal", 7))
sketch9.addConstraint(Sketcher.Constraint("Equal", 3, 5))
sketch9.addConstraint(Sketcher.Constraint("Equal", 2, 4))
sketch9.addConstraint(Sketcher.Constraint("DistanceY", 0, 1, 0, 2, Q("1 mm")))
sketch9.addConstraint(Sketcher.Constraint("DistanceX", 1, 1, 1, 2, Q("4.5 mm")))
sketch9.addConstraint(Sketcher.Constraint("DistanceY", -1, 1, 0, 2, Q("9.14 mm")))
sketch9.addConstraint(Sketcher.Constraint("DistanceY", 4, 2, -1, 1, Q("1.09 mm")))
sketch9.addConstraint(Sketcher.Constraint("DistanceX", 4, 2, 3, 2, Q("84.661769 mm")))
sketch9.addConstraint(Sketcher.Constraint("DistanceX", -1, 1, 0, 2, Q("40.080885 mm")))
pad4 = body.newObject("PartDesign::Pad", "Pad003")
pad4.Profile = sketch9
pad4.Length = 3
pad4.Reversed = True

doc.recompute()
